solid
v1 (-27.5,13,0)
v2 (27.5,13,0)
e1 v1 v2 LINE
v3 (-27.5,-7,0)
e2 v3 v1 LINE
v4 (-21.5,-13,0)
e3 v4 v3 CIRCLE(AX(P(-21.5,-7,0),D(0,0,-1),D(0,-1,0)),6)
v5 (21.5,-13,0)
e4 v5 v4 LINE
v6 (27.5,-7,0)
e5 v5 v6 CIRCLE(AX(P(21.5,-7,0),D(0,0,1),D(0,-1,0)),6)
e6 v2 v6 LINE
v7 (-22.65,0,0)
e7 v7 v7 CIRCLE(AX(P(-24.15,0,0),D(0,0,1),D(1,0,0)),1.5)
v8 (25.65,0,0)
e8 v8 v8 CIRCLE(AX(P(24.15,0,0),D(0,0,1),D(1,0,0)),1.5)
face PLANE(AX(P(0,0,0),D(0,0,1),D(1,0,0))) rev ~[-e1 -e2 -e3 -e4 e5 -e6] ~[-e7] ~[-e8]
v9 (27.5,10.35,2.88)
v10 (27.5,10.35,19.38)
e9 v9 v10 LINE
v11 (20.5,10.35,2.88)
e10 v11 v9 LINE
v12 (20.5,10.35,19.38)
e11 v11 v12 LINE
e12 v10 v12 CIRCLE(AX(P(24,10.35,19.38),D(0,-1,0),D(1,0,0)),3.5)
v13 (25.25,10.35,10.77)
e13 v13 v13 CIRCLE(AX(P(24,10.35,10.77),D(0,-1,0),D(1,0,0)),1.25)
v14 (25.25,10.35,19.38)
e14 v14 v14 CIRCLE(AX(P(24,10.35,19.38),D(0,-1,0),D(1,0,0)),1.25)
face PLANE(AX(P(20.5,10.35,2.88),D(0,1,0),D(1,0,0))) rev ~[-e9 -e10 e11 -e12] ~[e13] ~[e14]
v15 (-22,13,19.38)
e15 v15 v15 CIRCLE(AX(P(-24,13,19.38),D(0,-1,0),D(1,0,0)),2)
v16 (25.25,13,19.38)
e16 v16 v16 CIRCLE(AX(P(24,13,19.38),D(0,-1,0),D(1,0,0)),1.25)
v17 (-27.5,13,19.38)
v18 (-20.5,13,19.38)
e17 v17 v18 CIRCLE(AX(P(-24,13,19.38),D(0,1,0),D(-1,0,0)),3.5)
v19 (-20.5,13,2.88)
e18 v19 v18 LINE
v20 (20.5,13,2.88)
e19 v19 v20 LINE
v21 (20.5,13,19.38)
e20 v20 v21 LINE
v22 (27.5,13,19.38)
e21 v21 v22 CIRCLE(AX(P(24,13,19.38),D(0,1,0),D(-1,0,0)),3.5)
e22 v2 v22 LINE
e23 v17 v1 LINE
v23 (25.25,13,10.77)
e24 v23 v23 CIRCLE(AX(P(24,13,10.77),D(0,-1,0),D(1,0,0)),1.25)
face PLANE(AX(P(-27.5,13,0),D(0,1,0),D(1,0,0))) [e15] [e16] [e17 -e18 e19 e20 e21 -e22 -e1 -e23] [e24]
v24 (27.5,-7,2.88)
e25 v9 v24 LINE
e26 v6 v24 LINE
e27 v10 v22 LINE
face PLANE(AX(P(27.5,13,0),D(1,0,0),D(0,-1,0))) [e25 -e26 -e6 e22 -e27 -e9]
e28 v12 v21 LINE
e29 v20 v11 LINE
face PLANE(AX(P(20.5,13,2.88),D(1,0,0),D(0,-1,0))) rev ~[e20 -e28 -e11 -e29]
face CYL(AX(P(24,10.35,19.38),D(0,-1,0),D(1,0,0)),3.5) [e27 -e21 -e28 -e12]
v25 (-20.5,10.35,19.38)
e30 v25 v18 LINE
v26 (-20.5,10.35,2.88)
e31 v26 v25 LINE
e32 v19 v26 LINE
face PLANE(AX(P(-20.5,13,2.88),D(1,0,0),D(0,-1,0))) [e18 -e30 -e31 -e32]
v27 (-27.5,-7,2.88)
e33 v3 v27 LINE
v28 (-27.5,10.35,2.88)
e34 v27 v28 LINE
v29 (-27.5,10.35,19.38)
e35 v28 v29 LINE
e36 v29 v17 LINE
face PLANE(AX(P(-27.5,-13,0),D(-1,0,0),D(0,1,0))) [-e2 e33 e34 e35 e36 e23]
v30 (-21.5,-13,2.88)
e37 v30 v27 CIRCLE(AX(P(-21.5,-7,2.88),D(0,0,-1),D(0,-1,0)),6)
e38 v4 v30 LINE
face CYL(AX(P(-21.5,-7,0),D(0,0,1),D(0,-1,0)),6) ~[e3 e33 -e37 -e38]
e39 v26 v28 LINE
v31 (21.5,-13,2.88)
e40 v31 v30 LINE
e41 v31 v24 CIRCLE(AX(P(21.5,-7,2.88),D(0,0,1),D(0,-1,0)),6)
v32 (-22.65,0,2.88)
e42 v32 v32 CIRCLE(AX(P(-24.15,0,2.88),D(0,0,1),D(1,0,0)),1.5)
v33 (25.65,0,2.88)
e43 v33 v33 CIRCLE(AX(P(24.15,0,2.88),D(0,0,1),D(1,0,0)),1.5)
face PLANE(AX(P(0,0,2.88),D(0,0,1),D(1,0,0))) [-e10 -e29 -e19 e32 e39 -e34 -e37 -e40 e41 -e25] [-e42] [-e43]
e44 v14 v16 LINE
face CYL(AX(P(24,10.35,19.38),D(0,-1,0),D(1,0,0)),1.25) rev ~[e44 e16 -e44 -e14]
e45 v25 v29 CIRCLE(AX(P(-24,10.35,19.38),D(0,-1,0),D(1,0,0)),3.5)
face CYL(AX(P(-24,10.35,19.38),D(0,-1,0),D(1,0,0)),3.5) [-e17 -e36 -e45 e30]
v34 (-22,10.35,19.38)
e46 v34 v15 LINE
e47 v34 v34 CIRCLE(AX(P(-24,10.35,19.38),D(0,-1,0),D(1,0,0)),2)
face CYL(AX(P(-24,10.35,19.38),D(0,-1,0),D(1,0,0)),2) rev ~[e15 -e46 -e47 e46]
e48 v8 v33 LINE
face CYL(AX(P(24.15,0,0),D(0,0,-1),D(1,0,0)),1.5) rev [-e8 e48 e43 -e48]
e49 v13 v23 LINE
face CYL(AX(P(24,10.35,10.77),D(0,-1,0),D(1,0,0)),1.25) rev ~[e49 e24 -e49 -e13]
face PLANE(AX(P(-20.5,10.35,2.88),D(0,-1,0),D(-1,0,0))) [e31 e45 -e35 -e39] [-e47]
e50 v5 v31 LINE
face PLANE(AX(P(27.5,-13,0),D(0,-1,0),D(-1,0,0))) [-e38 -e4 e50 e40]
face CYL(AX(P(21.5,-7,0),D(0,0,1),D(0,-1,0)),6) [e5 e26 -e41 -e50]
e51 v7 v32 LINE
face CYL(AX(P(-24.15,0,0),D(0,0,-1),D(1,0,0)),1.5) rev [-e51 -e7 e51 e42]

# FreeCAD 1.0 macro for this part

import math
import FreeCAD as App
import Part
import Sketcher


def edges_at(feature, points):
    """Names of the edges that pass closest to the given points."""
    edges = feature.Shape.Edges
    near = lambda p: min(range(len(edges)), key=lambda i: edges[i].distToShape(Part.Vertex(*p))[0])
    return sorted({f"Edge{near(p) + 1}" for p in points})

doc = App.newDocument("Part")
body = doc.addObject("PartDesign::Body", "Body")

sketch1 = body.newObject("Sketcher::SketchObject", "Sketch")
sketch1.AttachmentSupport = (doc.getObject("XY_Plane"), [""])
sketch1.MapMode = "FlatFace"
sketch1.addGeometry([
    Part.LineSegment(App.Vector(-27.5, -13, 0), App.Vector(27.5, -13, 0)),
    Part.LineSegment(App.Vector(27.5, -13, 0), App.Vector(27.5, 13, 0)),
    Part.LineSegment(App.Vector(27.5, 13, 0), App.Vector(-27.5, 13, 0)),
    Part.LineSegment(App.Vector(-27.5, 13, 0), App.Vector(-27.5, -13, 0)),
    Part.Circle(App.Vector(-24.15, 0, 0), App.Vector(0, 0, 1), 1.5),
    Part.Circle(App.Vector(24.15, 0, 0), App.Vector(0, 0, 1), 1.5),
], False)
sketch1.addConstraint([
    Sketcher.Constraint("Coincident", 0, 2, 1, 1),
    Sketcher.Constraint("Coincident", 1, 2, 2, 1),
    Sketcher.Constraint("Coincident", 2, 2, 3, 1),
    Sketcher.Constraint("Coincident", 3, 2, 0, 1),
    Sketcher.Constraint("Horizontal", 0),
    Sketcher.Constraint("Vertical", 1),
    Sketcher.Constraint("Horizontal", 2),
    Sketcher.Constraint("Vertical", 3),
    Sketcher.Constraint("Equal", 4, 5),
    Sketcher.Constraint("Symmetric", 4, 3, 5, 3, -1, 1),
    Sketcher.Constraint("Symmetric", 0, 2, 2, 2, -1, 1),
    Sketcher.Constraint("PointOnObject", 4, 3, -1),
    Sketcher.Constraint("Diameter", 4, 3.0),
    Sketcher.Constraint("DistanceX", 0, 1, 0, 2, 55.0),
    Sketcher.Constraint("DistanceY", 1, 1, 1, 2, 26.0),
    Sketcher.Constraint("DistanceX", 4, 3, 5, 3, 48.3),
])
pad1 = body.newObject("PartDesign::Pad", "Pad")
pad1.Profile = sketch1
pad1.Length = 2.88
doc.recompute()

fillet = body.newObject("PartDesign::Fillet", "Fillet")
fillet.Base = (pad1, edges_at(pad1, [(-27.5, -13, 1.44), (27.5, -13, 1.44)]))
fillet.Radius = 6

sketch2 = body.newObject("Sketcher::SketchObject", "Sketch001")
sketch2.AttachmentSupport = (doc.getObject("XY_Plane"), [""])
sketch2.MapMode = "FlatFace"
sketch2.AttachmentOffset = App.Placement(App.Vector(0, 0, 2.88), App.Rotation())
sketch2.addGeometry([
    Part.LineSegment(App.Vector(27.5, 10.35, 0), App.Vector(27.5, 13, 0)),
    Part.LineSegment(App.Vector(27.5, 13, 0), App.Vector(20.5, 13, 0)),
    Part.LineSegment(App.Vector(20.5, 13, 0), App.Vector(20.5, 10.35, 0)),
    Part.LineSegment(App.Vector(20.5, 10.35, 0), App.Vector(27.5, 10.35, 0)),
    Part.LineSegment(App.Vector(-20.5, 10.35, 0), App.Vector(-20.5, 13, 0)),
    Part.LineSegment(App.Vector(-20.5, 13, 0), App.Vector(-27.5, 13, 0)),
    Part.LineSegment(App.Vector(-27.5, 13, 0), App.Vector(-27.5, 10.35, 0)),
    Part.LineSegment(App.Vector(-27.5, 10.35, 0), App.Vector(-20.5, 10.35, 0)),
], False)
sketch2.addConstraint([
    Sketcher.Constraint("Coincident", 0, 2, 1, 1),
    Sketcher.Constraint("Coincident", 1, 2, 2, 1),
    Sketcher.Constraint("Coincident", 2, 2, 3, 1),
    Sketcher.Constraint("Coincident", 3, 2, 0, 1),
    Sketcher.Constraint("Coincident", 4, 2, 5, 1),
    Sketcher.Constraint("Coincident", 5, 2, 6, 1),
    Sketcher.Constraint("Coincident", 6, 2, 7, 1),
    Sketcher.Constraint("Coincident", 7, 2, 4, 1),
    Sketcher.Constraint("Vertical", 0),
    Sketcher.Constraint("Horizontal", 1),
    Sketcher.Constraint("Vertical", 2),
    Sketcher.Constraint("Horizontal", 3),
    Sketcher.Constraint("Vertical", 4),
    Sketcher.Constraint("Horizontal", 5),
    Sketcher.Constraint("Vertical", 6),
    Sketcher.Constraint("Horizontal", 7),
    Sketcher.Constraint("Symmetric", 1, 2, 4, 2, -2),
    Sketcher.Constraint("Symmetric", 3, 2, 6, 2, -2),
    Sketcher.Constraint("DistanceX", 1, 2, 1, 1, 7.0),
    Sketcher.Constraint("DistanceY", 0, 1, 0, 2, 2.65),
    Sketcher.Constraint("DistanceY", -1, 1, 0, 2, 13.0),
    Sketcher.Constraint("DistanceX", 4, 2, 1, 2, 41.0),
])
pad2 = body.newObject("PartDesign::Pad", "Pad001")
pad2.Profile = sketch2
pad2.Length = 20

sketch3 = body.newObject("Sketcher::SketchObject", "Sketch002")
sketch3.AttachmentSupport = (doc.getObject("XZ_Plane"), [""])
sketch3.MapMode = "FlatFace"
sketch3.AttachmentOffset = App.Placement(App.Vector(0, 0, -10.35), App.Rotation())
sketch3.addGeometry([
    Part.ArcOfCircle(Part.Circle(App.Vector(-24, 19.38, 0), App.Vector(0, 0, 1), 3.5), math.radians(0), math.radians(90)),
    Part.LineSegment(App.Vector(-20.5, 19.38, 0), App.Vector(-20.5, 22.88, 0)),
    Part.LineSegment(App.Vector(-20.5, 22.88, 0), App.Vector(-24, 22.88, 0)),
    Part.LineSegment(App.Vector(-27.5, 22.88, 0), App.Vector(-27.5, 19.38, 0)),
    Part.ArcOfCircle(Part.Circle(App.Vector(-24, 19.38, 0), App.Vector(0, 0, 1), 3.5), math.radians(90), math.radians(180)),
    Part.LineSegment(App.Vector(-24, 22.88, 0), App.Vector(-27.5, 22.88, 0)),
    Part.ArcOfCircle(Part.Circle(App.Vector(24, 19.38, 0), App.Vector(0, 0, 1), 3.5), math.radians(0), math.radians(90)),
    Part.LineSegment(App.Vector(27.5, 19.38, 0), App.Vector(27.5, 22.88, 0)),
    Part.LineSegment(App.Vector(27.5, 22.88, 0), App.Vector(24, 22.88, 0)),
    Part.ArcOfCircle(Part.Circle(App.Vector(24, 19.38, 0), App.Vector(0, 0, 1), 3.5), math.radians(90), math.radians(180)),
    Part.LineSegment(App.Vector(24, 22.88, 0), App.Vector(20.5, 22.88, 0)),
    Part.LineSegment(App.Vector(20.5, 22.88, 0), App.Vector(20.5, 19.38, 0)),
], False)
sketch3.addConstraint([
    Sketcher.Constraint("Tangent", 0, 1, 1, 1),
    Sketcher.Constraint("Coincident", 1, 2, 2, 1),
    Sketcher.Constraint("Tangent", 2, 2, 0, 2),
    Sketcher.Constraint("Tangent", 3, 2, 4, 2),
    Sketcher.Constraint("Tangent", 4, 1, 5, 1),
    Sketcher.Constraint("Coincident", 5, 2, 3, 1),
    Sketcher.Constraint("Tangent", 6, 1, 7, 1),
    Sketcher.Constraint("Coincident", 7, 2, 8, 1),
    Sketcher.Constraint("Tangent", 8, 2, 6, 2),
    Sketcher.Constraint("Tangent", 9, 1, 10, 1),
    Sketcher.Constraint("Coincident", 10, 2, 11, 1),
    Sketcher.Constraint("Tangent", 11, 2, 9, 2),
    Sketcher.Constraint("Vertical", 1),
    Sketcher.Constraint("Horizontal", 2),
    Sketcher.Constraint("Vertical", 3),
    Sketcher.Constraint("Horizontal", 5),
    Sketcher.Constraint("Vertical", 7),
    Sketcher.Constraint("Horizontal", 8),
    Sketcher.Constraint("Horizontal", 10),
    Sketcher.Constraint("Vertical", 11),
    Sketcher.Constraint("Coincident", 4, 3, 0, 3),
    Sketcher.Constraint("Coincident", 9, 3, 6, 3),
    Sketcher.Constraint("Equal", 0, 4),
    Sketcher.Constraint("Equal", 4, 6),
    Sketcher.Constraint("Equal", 6, 9),
    Sketcher.Constraint("Symmetric", 0, 3, 6, 3, -2),
    Sketcher.Constraint("Radius", 0, 3.5),
    Sketcher.Constraint("DistanceX", 0, 3, -1, 1, 24.0),
    Sketcher.Constraint("DistanceY", -1, 1, 0, 3, 19.38),
])
pocket1 = body.newObject("PartDesign::Pocket", "Pocket")
pocket1.Profile = sketch3
pocket1.Length = 20

sketch4 = body.newObject("Sketcher::SketchObject", "Sketch003")
sketch4.AttachmentSupport = (doc.getObject("XZ_Plane"), [""])
sketch4.MapMode = "FlatFace"
sketch4.AttachmentOffset = App.Placement(App.Vector(0, 0, -10.35), App.Rotation())
sketch4.addGeometry([
    Part.Circle(App.Vector(24, 19.38, 0), App.Vector(0, 0, 1), 1.25),
    Part.Circle(App.Vector(24, 10.77, 0), App.Vector(0, 0, 1), 1.25),
    Part.Circle(App.Vector(-29.7525, 8.38, 0), App.Vector(0, 0, 1), 2),
    Part.Circle(App.Vector(-24, 19.38, 0), App.Vector(0, 0, 1), 2),
], False)
sketch4.addConstraint([
    Sketcher.Constraint("Equal", 0, 1),
    Sketcher.Constraint("Equal", 2, 3),
    Sketcher.Constraint("Symmetric", 0, 3, 3, 3, -2),
    Sketcher.Constraint("Vertical", 0, 3, 1, 3),
    Sketcher.Constraint("Diameter", 2, 4.0),
    Sketcher.Constraint("Diameter", 0, 2.5),
    Sketcher.Constraint("DistanceX", -1, 1, 0, 3, 24.0),
    Sketcher.Constraint("DistanceY", 2, 3, 0, 3, 11.0),
    Sketcher.Constraint("DistanceY", -1, 1, 0, 3, 19.38),
    Sketcher.Constraint("DistanceY", -1, 1, 1, 3, 10.77),
    Sketcher.Constraint("DistanceX", 2, 3, -1, 1, 29.7525),
])
pocket2 = body.newObject("PartDesign::Pocket", "Pocket001")
pocket2.Profile = sketch4
pocket2.Type = "ThroughAll"

doc.recompute()
